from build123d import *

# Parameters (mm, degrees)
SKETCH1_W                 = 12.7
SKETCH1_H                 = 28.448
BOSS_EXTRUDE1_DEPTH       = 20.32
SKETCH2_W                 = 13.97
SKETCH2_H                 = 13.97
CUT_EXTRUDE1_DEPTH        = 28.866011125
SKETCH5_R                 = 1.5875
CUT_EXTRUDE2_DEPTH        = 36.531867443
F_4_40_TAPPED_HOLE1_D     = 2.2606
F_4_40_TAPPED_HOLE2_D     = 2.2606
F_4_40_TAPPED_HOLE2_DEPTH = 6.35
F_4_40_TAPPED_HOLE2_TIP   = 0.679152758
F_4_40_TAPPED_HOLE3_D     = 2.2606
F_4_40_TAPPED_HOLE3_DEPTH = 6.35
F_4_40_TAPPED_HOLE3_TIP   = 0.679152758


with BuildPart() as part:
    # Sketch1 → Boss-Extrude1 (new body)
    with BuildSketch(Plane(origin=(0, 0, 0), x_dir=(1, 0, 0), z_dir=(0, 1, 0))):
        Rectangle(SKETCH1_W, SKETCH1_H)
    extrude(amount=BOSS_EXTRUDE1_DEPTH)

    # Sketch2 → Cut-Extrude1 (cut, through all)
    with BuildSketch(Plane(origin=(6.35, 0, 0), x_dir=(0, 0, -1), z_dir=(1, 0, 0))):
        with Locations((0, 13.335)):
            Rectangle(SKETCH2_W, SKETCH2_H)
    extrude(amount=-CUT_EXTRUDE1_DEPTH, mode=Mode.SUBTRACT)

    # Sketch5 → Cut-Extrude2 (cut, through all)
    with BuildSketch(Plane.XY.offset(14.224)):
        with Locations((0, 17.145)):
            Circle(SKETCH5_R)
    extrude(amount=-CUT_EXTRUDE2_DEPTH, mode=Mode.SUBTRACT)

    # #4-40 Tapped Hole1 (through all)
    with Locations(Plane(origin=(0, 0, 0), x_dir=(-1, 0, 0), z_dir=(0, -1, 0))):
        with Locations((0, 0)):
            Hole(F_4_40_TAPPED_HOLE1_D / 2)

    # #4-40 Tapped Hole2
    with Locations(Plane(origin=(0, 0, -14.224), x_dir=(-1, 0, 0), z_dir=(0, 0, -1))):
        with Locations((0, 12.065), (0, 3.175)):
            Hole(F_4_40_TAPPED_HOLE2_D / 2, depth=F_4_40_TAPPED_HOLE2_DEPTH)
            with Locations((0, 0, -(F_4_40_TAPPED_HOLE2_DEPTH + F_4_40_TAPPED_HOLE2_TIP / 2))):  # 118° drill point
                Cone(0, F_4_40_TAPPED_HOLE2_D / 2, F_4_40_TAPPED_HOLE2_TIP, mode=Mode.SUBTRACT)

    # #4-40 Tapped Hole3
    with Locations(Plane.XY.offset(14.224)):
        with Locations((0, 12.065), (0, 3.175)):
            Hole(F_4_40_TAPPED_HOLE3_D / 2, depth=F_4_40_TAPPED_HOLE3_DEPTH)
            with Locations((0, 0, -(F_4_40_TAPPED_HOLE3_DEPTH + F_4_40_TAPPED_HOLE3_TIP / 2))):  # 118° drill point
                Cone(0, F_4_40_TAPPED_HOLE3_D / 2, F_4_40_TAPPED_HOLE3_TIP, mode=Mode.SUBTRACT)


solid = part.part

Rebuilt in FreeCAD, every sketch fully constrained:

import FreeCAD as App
import Part
import Sketcher
Q = App.Units.Quantity

doc = App.newDocument("Part")
body = doc.addObject("PartDesign::Body", "Body")

sketch1 = doc.addObject("Sketcher::SketchObject", "Sketch")
body.addObject(sketch1)
sketch1.AttachmentSupport = (doc.XZ_Plane, [""])
sketch1.MapMode = "FlatFace"
sketch1.addGeometry(Part.LineSegment(App.Vector(-6.35, -14.224, 0), App.Vector(-6.35, 14.224, 0)), False)
sketch1.addGeometry(Part.LineSegment(App.Vector(-6.35, 14.224, 0), App.Vector(6.35, 14.224, 0)), False)
sketch1.addGeometry(Part.LineSegment(App.Vector(6.35, 14.224, 0), App.Vector(6.35, -14.224, 0)), False)
sketch1.addGeometry(Part.LineSegment(App.Vector(6.35, -14.224, 0), App.Vector(-6.35, -14.224, 0)), False)
sketch1.addConstraint(Sketcher.Constraint("Coincident", 0, 2, 1, 1))
sketch1.addConstraint(Sketcher.Constraint("Coincident", 1, 2, 2, 1))
sketch1.addConstraint(Sketcher.Constraint("Coincident", 2, 2, 3, 1))
sketch1.addConstraint(Sketcher.Constraint("Coincident", 3, 2, 0, 1))
sketch1.addConstraint(Sketcher.Constraint("Vertical", 0))
sketch1.addConstraint(Sketcher.Constraint("Horizontal", 1))
sketch1.addConstraint(Sketcher.Constraint("Vertical", 2))
sketch1.addConstraint(Sketcher.Constraint("Horizontal", 3))
sketch1.addConstraint(Sketcher.Constraint("Symmetric", 0, 2, 2, 2, -1, 1))
sketch1.addConstraint(Sketcher.Constraint("DistanceX", 1, 1, 1, 2, Q("0.5 in")))
sketch1.addConstraint(Sketcher.Constraint("DistanceY", 0, 1, 0, 2, Q("1.12 in")))
pad1 = doc.addObject("PartDesign::Pad", "Pad")
body.addObject(pad1)
pad1.Profile = sketch1
pad1.Length = Q("0.8 in")
pad1.Reversed = True

sketch2 = doc.addObject("Sketcher::SketchObject", "Sketch001")
body.addObject(sketch2)
sketch2.AttachmentSupport = (doc.YZ_Plane, [""])
sketch2.MapMode = "FlatFace"
sketch2.AttachmentOffset = App.Placement(App.Vector(0, 0, 0.25 * 25.4), App.Rotation())
sketch2.addGeometry(Part.LineSegment(App.Vector(20.32, 6.985, 0), App.Vector(6.35, 6.985, 0)), False)
sketch2.addGeometry(Part.LineSegment(App.Vector(6.35, 6.985, 0), App.Vector(6.35, -6.985, 0)), False)
sketch2.addGeometry(Part.LineSegment(App.Vector(6.35, -6.985, 0), App.Vector(20.32, -6.985, 0)), False)
sketch2.addGeometry(Part.LineSegment(App.Vector(20.32, -6.985, 0), App.Vector(20.32, 6.985, 0)), False)
sketch2.addConstraint(Sketcher.Constraint("Coincident", 0, 2, 1, 1))
sketch2.addConstraint(Sketcher.Constraint("Coincident", 1, 2, 2, 1))
sketch2.addConstraint(Sketcher.Constraint("Coincident", 2, 2, 3, 1))
sketch2.addConstraint(Sketcher.Constraint("Coincident", 3, 2, 0, 1))
sketch2.addConstraint(Sketcher.Constraint("Horizontal", 0))
sketch2.addConstraint(Sketcher.Constraint("Vertical", 1))
sketch2.addConstraint(Sketcher.Constraint("Horizontal", 2))
sketch2.addConstraint(Sketcher.Constraint("Vertical", 3))
sketch2.addConstraint(Sketcher.Constraint("Equal", 2, 1))
sketch2.addConstraint(Sketcher.Constraint("DistanceX", 0, 2, 0, 1, Q("0.55 in")))
sketch2.addConstraint(Sketcher.Constraint("DistanceX", -1, 1, 2, 2, Q("0.8 in")))
sketch2.addConstraint(Sketcher.Constraint("DistanceY", -1, 1, 0, 2, Q("0.275 in")))
pocket1 = doc.addObject("PartDesign::Pocket", "Pocket")
body.addObject(pocket1)
pocket1.Profile = sketch2
pocket1.Type = "ThroughAll"

sketch3 = doc.addObject("Sketcher::SketchObject", "Sketch002")
body.addObject(sketch3)
sketch3.AttachmentSupport = (doc.XY_Plane, [""])
sketch3.MapMode = "FlatFace"
sketch3.AttachmentOffset = App.Placement(App.Vector(0, 0, 0.56 * 25.4), App.Rotation())
sketch3.addGeometry(Part.Circle(App.Vector(0, 17.145, 0), App.Vector(0, 0, 1), 1.5875), False)
sketch3.addConstraint(Sketcher.Constraint("PointOnObject", 0, 3, -2))
sketch3.addConstraint(Sketcher.Constraint("Diameter", 0, Q("0.125 in")))
sketch3.addConstraint(Sketcher.Constraint("DistanceY", -1, 1, 0, 3, Q("0.675 in")))
pocket2 = doc.addObject("PartDesign::Pocket", "Pocket001")
body.addObject(pocket2)
pocket2.Profile = sketch3
pocket2.Type = "ThroughAll"

sketch4 = doc.addObject("Sketcher::SketchObject", "Sketch003")
body.addObject(sketch4)
sketch4.AttachmentSupport = (doc.XZ_Plane, [""])
sketch4.MapMode = "FlatFace"
sketch4.addGeometry(Part.Circle(App.Vector(0, 0, 0), App.Vector(0, 0, 1), 1.1303), False)
sketch4.addConstraint(Sketcher.Constraint("Coincident", 0, 3, -1, 1))
sketch4.addConstraint(Sketcher.Constraint("Diameter", 0, Q("0.089 in")))
doc.recompute()
hole = doc.addObject("PartDesign::Hole", "Hole")
body.addObject(hole)
hole.Profile = sketch4
hole.ThreadType = "None"
hole.Diameter = Q("0.089 in")
hole.DepthType = "ThroughAll"

sketch5 = doc.addObject("Sketcher::SketchObject", "Sketch004")
body.addObject(sketch5)
sketch5.AttachmentSupport = (doc.XY_Plane, [""])
sketch5.MapMode = "FlatFace"
sketch5.AttachmentOffset = App.Placement(App.Vector(0, 0, -0.56 * 25.4), App.Rotation())
sketch5.addGeometry(Part.Circle(App.Vector(0, 12.065, 0), App.Vector(0, 0, 1), 1.1303), False)
sketch5.addGeometry(Part.Circle(App.Vector(0, 3.175, 0), App.Vector(0, 0, 1), 1.1303), False)
sketch5.addConstraint(Sketcher.Constraint("Equal", 0, 1))
sketch5.addConstraint(Sketcher.Constraint("PointOnObject", 0, 3, -2))
sketch5.addConstraint(Sketcher.Constraint("PointOnObject", 1, 3, -2))
sketch5.addConstraint(Sketcher.Constraint("Diameter", 0, Q("0.089 in")))
sketch5.addConstraint(Sketcher.Constraint("DistanceY", 1, 3, 0, 3, Q("0.35 in")))
sketch5.addConstraint(Sketcher.Constraint("DistanceY", -1, 1, 0, 3, Q("0.475 in")))
doc.recompute()
hole2 = doc.addObject("PartDesign::Hole", "Hole001")
body.addObject(hole2)
hole2.Profile = sketch5
hole2.ThreadType = "None"
hole2.Diameter = Q("0.089 in")
hole2.DepthType = "Dimension"
hole2.Depth = Q("0.25 in")
hole2.DrillPoint = "Angled"
hole2.DrillPointAngle = 118
hole2.Reversed = True

sketch6 = doc.addObject("Sketcher::SketchObject", "Sketch005")
body.addObject(sketch6)
sketch6.AttachmentSupport = (doc.XY_Plane, [""])
sketch6.MapMode = "FlatFace"
sketch6.AttachmentOffset = App.Placement(App.Vector(0, 0, 0.56 * 25.4), App.Rotation())
sketch6.addGeometry(Part.Circle(App.Vector(0, 12.065, 0), App.Vector(0, 0, 1), 1.1303), False)
sketch6.addGeometry(Part.Circle(App.Vector(0, 3.175, 0), App.Vector(0, 0, 1), 1.1303), False)
sketch6.addConstraint(Sketcher.Constraint("Equal", 0, 1))
sketch6.addConstraint(Sketcher.Constraint("PointOnObject", 0, 3, -2))
sketch6.addConstraint(Sketcher.Constraint("PointOnObject", 1, 3, -2))
sketch6.addConstraint(Sketcher.Constraint("Diameter", 0, Q("0.089 in")))
sketch6.addConstraint(Sketcher.Constraint("DistanceY", 1, 3, 0, 3, Q("0.35 in")))
sketch6.addConstraint(Sketcher.Constraint("DistanceY", -1, 1, 0, 3, Q("0.475 in")))
doc.recompute()
hole3 = doc.addObject("PartDesign::Hole", "Hole002")
body.addObject(hole3)
hole3.Profile = sketch6
hole3.ThreadType = "None"
hole3.Diameter = Q("0.089 in")
hole3.DepthType = "Dimension"
hole3.Depth = Q("0.25 in")
hole3.DrillPoint = "Angled"
hole3.DrillPointAngle = 118

doc.recompute()
